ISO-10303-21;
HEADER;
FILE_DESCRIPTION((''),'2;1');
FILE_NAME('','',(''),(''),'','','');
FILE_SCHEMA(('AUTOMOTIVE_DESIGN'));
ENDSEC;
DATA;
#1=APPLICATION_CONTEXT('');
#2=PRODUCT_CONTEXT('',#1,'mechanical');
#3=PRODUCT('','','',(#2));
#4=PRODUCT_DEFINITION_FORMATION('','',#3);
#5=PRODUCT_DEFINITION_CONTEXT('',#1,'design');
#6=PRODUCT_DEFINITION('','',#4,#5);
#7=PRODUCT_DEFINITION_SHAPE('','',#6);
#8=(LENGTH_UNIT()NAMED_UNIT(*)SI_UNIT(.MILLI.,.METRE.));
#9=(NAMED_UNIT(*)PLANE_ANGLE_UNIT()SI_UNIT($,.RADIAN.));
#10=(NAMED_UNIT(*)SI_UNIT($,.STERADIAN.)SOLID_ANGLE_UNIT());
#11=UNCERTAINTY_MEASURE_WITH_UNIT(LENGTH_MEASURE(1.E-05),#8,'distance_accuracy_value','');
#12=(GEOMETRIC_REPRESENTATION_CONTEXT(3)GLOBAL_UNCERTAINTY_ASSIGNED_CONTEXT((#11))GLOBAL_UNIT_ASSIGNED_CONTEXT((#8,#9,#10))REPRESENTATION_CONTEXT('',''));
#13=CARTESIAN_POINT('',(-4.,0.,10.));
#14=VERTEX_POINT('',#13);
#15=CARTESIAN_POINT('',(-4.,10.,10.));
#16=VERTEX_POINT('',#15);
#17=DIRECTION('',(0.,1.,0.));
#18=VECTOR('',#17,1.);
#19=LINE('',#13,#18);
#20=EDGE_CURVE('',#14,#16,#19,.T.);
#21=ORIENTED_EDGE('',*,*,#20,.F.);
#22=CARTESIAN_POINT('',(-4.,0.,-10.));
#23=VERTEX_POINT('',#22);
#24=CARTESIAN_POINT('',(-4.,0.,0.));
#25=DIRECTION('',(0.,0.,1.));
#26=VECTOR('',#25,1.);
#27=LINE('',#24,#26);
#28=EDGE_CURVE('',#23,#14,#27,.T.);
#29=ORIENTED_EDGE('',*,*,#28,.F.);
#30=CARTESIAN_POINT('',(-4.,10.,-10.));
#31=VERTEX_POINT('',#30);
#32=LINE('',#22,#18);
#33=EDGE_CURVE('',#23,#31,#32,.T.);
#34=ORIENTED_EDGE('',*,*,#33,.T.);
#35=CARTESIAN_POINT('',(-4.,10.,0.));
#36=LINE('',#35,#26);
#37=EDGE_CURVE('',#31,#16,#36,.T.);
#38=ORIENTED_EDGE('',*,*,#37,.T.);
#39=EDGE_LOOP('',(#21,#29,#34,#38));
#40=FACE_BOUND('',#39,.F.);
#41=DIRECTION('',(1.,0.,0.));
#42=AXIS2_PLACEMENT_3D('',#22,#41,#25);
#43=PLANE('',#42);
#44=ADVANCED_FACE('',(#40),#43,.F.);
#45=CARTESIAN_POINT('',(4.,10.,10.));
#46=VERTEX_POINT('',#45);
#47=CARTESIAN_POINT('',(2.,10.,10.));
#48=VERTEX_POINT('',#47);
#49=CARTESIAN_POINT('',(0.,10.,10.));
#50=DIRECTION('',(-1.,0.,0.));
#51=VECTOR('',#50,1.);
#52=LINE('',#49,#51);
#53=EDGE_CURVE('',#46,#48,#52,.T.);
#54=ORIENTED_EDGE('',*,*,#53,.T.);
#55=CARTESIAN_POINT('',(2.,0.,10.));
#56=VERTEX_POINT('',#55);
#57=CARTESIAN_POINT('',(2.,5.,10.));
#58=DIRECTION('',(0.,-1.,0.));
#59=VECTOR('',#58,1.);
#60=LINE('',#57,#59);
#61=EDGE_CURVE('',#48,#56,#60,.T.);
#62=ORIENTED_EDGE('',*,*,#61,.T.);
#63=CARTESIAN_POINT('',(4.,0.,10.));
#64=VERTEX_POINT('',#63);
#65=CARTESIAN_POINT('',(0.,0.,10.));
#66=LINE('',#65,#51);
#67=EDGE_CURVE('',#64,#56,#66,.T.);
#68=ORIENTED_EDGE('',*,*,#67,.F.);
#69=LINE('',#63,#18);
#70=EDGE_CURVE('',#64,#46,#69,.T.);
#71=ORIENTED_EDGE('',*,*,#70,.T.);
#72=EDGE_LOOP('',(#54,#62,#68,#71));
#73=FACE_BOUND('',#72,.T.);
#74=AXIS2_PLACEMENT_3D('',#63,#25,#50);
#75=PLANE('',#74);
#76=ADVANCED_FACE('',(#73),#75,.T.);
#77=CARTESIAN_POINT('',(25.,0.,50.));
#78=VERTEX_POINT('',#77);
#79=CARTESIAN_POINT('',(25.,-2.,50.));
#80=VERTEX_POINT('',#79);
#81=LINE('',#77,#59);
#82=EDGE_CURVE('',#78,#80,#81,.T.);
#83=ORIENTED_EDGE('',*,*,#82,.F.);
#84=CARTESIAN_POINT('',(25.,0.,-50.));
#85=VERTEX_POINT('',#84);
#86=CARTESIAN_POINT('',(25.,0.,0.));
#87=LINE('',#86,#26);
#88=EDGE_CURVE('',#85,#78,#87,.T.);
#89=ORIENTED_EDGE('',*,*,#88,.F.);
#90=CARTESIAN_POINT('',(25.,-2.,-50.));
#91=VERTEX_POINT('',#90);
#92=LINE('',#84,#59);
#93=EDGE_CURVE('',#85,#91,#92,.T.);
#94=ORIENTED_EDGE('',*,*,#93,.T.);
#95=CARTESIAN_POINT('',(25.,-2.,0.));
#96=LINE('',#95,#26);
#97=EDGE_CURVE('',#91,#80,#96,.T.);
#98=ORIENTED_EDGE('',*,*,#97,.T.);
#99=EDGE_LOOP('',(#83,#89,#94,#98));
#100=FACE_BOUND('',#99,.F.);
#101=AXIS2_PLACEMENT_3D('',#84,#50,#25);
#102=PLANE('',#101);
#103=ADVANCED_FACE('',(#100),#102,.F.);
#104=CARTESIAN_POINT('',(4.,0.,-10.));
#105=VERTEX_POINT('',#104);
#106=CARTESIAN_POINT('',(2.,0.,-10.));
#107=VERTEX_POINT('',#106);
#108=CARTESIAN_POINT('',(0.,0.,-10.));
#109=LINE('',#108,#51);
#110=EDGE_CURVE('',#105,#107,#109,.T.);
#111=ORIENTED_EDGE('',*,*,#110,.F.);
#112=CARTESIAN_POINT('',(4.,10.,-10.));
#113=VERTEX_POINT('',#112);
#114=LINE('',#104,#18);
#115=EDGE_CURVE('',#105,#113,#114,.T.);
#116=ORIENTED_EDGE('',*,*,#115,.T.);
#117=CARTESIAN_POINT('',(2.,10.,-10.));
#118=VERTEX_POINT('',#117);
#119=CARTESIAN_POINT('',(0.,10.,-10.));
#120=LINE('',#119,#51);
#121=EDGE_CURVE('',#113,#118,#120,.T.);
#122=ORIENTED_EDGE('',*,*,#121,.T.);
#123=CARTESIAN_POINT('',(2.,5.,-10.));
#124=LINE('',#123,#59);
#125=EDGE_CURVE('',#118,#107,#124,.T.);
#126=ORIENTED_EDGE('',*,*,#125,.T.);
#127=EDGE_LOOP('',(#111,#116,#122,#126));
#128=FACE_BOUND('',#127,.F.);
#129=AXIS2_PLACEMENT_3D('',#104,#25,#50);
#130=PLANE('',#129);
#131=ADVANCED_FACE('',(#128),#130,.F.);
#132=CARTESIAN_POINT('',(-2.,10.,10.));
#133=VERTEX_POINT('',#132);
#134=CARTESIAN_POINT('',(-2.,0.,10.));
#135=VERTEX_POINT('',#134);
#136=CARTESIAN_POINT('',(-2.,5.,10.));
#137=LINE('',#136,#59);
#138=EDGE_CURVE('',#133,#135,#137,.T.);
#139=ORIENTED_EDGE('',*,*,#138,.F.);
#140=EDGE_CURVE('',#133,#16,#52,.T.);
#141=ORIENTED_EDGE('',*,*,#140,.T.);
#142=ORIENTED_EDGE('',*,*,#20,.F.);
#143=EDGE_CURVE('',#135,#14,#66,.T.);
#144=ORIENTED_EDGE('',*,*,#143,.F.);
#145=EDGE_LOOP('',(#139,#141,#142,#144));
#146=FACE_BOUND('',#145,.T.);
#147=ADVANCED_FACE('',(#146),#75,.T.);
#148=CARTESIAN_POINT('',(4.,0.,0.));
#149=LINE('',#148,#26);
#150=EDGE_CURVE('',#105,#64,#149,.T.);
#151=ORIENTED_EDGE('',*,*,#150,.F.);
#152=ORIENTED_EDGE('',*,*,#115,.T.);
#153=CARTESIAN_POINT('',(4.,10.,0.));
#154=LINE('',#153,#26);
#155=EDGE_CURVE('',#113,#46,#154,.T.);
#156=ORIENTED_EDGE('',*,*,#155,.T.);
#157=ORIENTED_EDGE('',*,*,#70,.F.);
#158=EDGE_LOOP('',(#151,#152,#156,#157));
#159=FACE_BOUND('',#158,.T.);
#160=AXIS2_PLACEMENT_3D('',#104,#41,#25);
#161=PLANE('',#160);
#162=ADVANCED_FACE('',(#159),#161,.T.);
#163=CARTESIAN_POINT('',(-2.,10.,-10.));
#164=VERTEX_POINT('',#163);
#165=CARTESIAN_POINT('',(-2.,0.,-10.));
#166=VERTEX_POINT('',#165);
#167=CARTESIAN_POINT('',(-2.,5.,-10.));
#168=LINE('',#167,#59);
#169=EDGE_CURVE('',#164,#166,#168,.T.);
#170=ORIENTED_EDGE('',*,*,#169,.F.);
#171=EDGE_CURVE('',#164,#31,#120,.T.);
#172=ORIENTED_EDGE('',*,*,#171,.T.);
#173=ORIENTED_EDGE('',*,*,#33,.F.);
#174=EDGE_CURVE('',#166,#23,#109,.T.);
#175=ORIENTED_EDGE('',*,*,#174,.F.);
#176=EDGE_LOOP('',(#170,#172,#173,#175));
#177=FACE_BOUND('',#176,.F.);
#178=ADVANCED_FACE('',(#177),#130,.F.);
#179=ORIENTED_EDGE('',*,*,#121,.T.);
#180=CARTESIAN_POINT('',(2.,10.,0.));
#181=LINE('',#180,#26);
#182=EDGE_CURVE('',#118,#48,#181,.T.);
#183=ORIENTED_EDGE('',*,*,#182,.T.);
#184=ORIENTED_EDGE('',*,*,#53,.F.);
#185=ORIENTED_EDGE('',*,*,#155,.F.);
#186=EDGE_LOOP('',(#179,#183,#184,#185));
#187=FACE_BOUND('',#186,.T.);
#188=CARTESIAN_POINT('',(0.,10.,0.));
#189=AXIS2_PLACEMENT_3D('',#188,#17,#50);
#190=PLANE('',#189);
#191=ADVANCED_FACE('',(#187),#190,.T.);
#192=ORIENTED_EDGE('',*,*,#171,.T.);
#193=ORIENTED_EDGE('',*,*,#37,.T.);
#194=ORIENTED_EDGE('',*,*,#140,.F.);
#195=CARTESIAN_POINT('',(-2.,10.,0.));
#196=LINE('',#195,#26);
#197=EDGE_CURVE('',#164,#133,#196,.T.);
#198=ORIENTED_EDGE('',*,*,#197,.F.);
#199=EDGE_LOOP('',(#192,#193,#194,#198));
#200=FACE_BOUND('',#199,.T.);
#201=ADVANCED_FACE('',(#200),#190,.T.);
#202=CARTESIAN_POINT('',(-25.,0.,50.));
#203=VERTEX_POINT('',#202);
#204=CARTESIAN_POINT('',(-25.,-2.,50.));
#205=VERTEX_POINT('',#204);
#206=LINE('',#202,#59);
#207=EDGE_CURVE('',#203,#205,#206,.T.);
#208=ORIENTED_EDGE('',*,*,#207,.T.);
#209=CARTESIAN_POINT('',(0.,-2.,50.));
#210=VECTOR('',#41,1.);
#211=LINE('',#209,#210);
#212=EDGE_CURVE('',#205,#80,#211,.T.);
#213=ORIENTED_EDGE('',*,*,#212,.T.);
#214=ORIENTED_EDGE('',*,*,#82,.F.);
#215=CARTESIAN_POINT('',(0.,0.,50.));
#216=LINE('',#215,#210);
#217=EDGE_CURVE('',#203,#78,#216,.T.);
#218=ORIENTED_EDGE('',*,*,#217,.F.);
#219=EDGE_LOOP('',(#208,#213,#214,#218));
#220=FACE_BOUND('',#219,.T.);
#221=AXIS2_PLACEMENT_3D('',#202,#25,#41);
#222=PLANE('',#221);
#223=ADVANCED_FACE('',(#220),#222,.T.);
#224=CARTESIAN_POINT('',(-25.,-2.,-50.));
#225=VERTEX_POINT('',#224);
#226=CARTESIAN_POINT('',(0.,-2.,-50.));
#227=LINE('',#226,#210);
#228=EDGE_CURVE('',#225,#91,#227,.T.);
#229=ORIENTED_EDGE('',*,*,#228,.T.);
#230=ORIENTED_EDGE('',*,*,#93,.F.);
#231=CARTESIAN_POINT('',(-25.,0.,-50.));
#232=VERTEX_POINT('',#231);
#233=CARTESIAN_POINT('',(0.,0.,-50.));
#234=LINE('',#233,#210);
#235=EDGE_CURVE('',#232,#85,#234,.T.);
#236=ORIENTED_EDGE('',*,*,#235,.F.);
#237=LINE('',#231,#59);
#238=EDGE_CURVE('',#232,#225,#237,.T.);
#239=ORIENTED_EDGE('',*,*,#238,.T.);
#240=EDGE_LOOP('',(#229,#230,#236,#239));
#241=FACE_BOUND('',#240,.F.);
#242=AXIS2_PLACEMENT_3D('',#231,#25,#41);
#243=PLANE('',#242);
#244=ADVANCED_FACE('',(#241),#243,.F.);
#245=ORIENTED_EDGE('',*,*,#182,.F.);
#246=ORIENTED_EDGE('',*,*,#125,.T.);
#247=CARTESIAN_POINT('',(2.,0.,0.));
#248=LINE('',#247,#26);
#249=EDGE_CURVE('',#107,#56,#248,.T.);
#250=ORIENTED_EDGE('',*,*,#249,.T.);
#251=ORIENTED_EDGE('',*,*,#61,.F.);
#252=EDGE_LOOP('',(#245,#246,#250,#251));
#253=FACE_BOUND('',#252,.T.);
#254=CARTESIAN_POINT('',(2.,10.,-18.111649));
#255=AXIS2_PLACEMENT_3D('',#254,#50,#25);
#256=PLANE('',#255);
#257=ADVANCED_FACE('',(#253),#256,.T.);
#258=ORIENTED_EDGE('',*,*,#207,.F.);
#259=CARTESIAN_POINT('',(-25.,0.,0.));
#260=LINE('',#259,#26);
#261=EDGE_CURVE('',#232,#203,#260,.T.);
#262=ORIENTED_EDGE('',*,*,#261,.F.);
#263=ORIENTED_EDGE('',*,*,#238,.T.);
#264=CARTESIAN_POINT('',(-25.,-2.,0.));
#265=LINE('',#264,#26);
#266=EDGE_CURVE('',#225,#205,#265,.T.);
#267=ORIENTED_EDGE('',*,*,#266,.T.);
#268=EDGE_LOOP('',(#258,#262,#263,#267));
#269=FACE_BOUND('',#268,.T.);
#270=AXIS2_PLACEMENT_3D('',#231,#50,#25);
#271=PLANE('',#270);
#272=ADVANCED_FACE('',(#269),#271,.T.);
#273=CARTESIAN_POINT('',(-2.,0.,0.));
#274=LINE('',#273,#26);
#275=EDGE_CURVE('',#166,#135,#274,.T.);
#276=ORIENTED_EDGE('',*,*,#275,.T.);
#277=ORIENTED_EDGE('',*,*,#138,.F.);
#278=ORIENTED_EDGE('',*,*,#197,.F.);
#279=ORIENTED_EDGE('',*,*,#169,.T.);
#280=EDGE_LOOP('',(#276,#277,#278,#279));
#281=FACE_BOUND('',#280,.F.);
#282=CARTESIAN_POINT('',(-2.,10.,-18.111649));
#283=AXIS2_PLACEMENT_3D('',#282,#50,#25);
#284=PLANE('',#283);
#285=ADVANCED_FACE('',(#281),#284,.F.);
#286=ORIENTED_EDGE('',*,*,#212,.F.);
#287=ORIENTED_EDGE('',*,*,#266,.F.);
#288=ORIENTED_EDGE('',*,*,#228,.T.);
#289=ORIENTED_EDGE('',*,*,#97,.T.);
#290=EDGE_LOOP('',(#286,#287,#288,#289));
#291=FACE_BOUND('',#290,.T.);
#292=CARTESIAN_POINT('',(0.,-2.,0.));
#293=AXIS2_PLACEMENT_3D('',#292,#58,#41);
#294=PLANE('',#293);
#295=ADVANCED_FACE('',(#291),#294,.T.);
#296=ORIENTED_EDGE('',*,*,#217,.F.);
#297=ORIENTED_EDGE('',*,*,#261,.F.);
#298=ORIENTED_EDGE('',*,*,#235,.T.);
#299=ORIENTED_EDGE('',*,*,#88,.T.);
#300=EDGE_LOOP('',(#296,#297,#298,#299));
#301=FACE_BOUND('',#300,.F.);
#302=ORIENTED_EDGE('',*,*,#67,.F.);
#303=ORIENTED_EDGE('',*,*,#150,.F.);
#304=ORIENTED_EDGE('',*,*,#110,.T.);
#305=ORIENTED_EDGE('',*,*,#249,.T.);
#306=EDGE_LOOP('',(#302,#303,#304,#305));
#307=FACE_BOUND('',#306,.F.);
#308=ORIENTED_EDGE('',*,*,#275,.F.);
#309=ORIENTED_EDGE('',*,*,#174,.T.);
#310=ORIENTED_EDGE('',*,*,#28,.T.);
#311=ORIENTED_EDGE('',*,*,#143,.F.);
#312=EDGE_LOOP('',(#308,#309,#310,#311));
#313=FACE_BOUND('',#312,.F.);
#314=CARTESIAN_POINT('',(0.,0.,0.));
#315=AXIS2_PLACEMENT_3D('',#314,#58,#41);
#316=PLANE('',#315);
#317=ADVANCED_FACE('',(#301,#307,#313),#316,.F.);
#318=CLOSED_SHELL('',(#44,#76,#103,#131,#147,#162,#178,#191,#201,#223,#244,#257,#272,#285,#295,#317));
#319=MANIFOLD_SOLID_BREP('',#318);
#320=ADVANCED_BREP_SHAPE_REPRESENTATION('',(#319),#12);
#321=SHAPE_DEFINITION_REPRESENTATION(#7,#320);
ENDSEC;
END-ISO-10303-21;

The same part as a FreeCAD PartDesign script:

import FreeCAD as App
import Part
import Sketcher
from FreeCAD import Vector

doc = App.newDocument("Part")
body = doc.addObject("PartDesign::Body", "Body")

# Sketch on XZ plane
sketch1 = doc.addObject("Sketcher::SketchObject", "Sketch")
body.addObject(sketch1)
sketch1.AttachmentSupport = (doc.XZ_Plane, [""])
sketch1.MapMode = "FlatFace"
sketch1.addGeometry(Part.LineSegment(Vector(-25, 50, 0), Vector(-25, -50, 0)), False)
sketch1.addGeometry(Part.LineSegment(Vector(-25, -50, 0), Vector(25, -50, 0)), False)
sketch1.addGeometry(Part.LineSegment(Vector(25, -50, 0), Vector(25, 50, 0)), False)
sketch1.addGeometry(Part.LineSegment(Vector(25, 50, 0), Vector(-25, 50, 0)), False)
sketch1.addConstraint(Sketcher.Constraint("Coincident", 0, 2, 1, 1))
sketch1.addConstraint(Sketcher.Constraint("Coincident", 1, 2, 2, 1))
sketch1.addConstraint(Sketcher.Constraint("Coincident", 2, 2, 3, 1))
sketch1.addConstraint(Sketcher.Constraint("Coincident", 3, 2, 0, 1))
sketch1.addConstraint(Sketcher.Constraint("Vertical", 0))
sketch1.addConstraint(Sketcher.Constraint("Horizontal", 1))
sketch1.addConstraint(Sketcher.Constraint("Vertical", 2))
sketch1.addConstraint(Sketcher.Constraint("Horizontal", 3))
sketch1.addConstraint(Sketcher.Constraint("Symmetric", 0, 2, 2, 2, -1, 1))
sketch1.addConstraint(Sketcher.Constraint("DistanceX", 1, 1, 1, 2, 50.0))
sketch1.addConstraint(Sketcher.Constraint("DistanceY", 0, 2, 0, 1, 100.0))
pad1 = doc.addObject("PartDesign::Pad", "Pad")
body.addObject(pad1)
pad1.Profile = sketch1
pad1.Length = 2

# Sketch on XZ plane
sketch2 = doc.addObject("Sketcher::SketchObject", "Sketch001")
body.addObject(sketch2)
sketch2.AttachmentSupport = (doc.XZ_Plane, [""])
sketch2.MapMode = "FlatFace"
sketch2.addGeometry(Part.LineSegment(Vector(4, 10, 0), Vector(4, -10, 0)), False)
sketch2.addGeometry(Part.LineSegment(Vector(4, -10, 0), Vector(-4, -10, 0)), False)
sketch2.addGeometry(Part.LineSegment(Vector(-4, -10, 0), Vector(-4, 10, 0)), False)
sketch2.addGeometry(Part.LineSegment(Vector(-4, 10, 0), Vector(4, 10, 0)), False)
sketch2.addConstraint(Sketcher.Constraint("Coincident", 0, 2, 1, 1))
sketch2.addConstraint(Sketcher.Constraint("Coincident", 1, 2, 2, 1))
sketch2.addConstraint(Sketcher.Constraint("Coincident", 2, 2, 3, 1))
sketch2.addConstraint(Sketcher.Constraint("Coincident", 3, 2, 0, 1))
sketch2.addConstraint(Sketcher.Constraint("Vertical", 0))
sketch2.addConstraint(Sketcher.Constraint("Horizontal", 1))
sketch2.addConstraint(Sketcher.Constraint("Vertical", 2))
sketch2.addConstraint(Sketcher.Constraint("Horizontal", 3))
sketch2.addConstraint(Sketcher.Constraint("Symmetric", 0, 2, 2, 2, -1, 1))
sketch2.addConstraint(Sketcher.Constraint("DistanceX", 1, 2, 1, 1, 8.0))
sketch2.addConstraint(Sketcher.Constraint("DistanceY", 0, 2, 0, 1, 20.0))
pad2 = doc.addObject("PartDesign::Pad", "Pad001")
body.addObject(pad2)
pad2.Profile = sketch2
pad2.Length = 10
pad2.Reversed = True

# Sketch on XZ plane
sketch3 = doc.addObject("Sketcher::SketchObject", "Sketch002")
body.addObject(sketch3)
sketch3.AttachmentSupport = (doc.XZ_Plane, [""])
sketch3.MapMode = "FlatFace"
sketch3.AttachmentOffset = App.Placement(Vector(0, 0, -10), App.Rotation())
sketch3.addGeometry(Part.LineSegment(Vector(2, 18.1, 0), Vector(2, -18.1, 0)), False)
sketch3.addGeometry(Part.LineSegment(Vector(2, -18.1, 0), Vector(-2, -18.1, 0)), False)
sketch3.addGeometry(Part.LineSegment(Vector(-2, -18.1, 0), Vector(-2, 18.1, 0)), False)
sketch3.addGeometry(Part.LineSegment(Vector(-2, 18.1, 0), Vector(2, 18.1, 0)), False)
sketch3.addConstraint(Sketcher.Constraint("Coincident", 0, 2, 1, 1))
sketch3.addConstraint(Sketcher.Constraint("Coincident", 1, 2, 2, 1))
sketch3.addConstraint(Sketcher.Constraint("Coincident", 2, 2, 3, 1))
sketch3.addConstraint(Sketcher.Constraint("Coincident", 3, 2, 0, 1))
sketch3.addConstraint(Sketcher.Constraint("Vertical", 0))
sketch3.addConstraint(Sketcher.Constraint("Horizontal", 1))
sketch3.addConstraint(Sketcher.Constraint("Vertical", 2))
sketch3.addConstraint(Sketcher.Constraint("Horizontal", 3))
sketch3.addConstraint(Sketcher.Constraint("Symmetric", 0, 2, 2, 2, -1, 1))
sketch3.addConstraint(Sketcher.Constraint("DistanceX", 1, 2, 1, 1, 4.0))
sketch3.addConstraint(Sketcher.Constraint("DistanceY", 0, 2, 0, 1, 36.223298))
pocket1 = doc.addObject("PartDesign::Pocket", "Pocket")
body.addObject(pocket1)
pocket1.Profile = sketch3
pocket1.Length = 10
pocket1.Reversed = True

doc.recompute()
